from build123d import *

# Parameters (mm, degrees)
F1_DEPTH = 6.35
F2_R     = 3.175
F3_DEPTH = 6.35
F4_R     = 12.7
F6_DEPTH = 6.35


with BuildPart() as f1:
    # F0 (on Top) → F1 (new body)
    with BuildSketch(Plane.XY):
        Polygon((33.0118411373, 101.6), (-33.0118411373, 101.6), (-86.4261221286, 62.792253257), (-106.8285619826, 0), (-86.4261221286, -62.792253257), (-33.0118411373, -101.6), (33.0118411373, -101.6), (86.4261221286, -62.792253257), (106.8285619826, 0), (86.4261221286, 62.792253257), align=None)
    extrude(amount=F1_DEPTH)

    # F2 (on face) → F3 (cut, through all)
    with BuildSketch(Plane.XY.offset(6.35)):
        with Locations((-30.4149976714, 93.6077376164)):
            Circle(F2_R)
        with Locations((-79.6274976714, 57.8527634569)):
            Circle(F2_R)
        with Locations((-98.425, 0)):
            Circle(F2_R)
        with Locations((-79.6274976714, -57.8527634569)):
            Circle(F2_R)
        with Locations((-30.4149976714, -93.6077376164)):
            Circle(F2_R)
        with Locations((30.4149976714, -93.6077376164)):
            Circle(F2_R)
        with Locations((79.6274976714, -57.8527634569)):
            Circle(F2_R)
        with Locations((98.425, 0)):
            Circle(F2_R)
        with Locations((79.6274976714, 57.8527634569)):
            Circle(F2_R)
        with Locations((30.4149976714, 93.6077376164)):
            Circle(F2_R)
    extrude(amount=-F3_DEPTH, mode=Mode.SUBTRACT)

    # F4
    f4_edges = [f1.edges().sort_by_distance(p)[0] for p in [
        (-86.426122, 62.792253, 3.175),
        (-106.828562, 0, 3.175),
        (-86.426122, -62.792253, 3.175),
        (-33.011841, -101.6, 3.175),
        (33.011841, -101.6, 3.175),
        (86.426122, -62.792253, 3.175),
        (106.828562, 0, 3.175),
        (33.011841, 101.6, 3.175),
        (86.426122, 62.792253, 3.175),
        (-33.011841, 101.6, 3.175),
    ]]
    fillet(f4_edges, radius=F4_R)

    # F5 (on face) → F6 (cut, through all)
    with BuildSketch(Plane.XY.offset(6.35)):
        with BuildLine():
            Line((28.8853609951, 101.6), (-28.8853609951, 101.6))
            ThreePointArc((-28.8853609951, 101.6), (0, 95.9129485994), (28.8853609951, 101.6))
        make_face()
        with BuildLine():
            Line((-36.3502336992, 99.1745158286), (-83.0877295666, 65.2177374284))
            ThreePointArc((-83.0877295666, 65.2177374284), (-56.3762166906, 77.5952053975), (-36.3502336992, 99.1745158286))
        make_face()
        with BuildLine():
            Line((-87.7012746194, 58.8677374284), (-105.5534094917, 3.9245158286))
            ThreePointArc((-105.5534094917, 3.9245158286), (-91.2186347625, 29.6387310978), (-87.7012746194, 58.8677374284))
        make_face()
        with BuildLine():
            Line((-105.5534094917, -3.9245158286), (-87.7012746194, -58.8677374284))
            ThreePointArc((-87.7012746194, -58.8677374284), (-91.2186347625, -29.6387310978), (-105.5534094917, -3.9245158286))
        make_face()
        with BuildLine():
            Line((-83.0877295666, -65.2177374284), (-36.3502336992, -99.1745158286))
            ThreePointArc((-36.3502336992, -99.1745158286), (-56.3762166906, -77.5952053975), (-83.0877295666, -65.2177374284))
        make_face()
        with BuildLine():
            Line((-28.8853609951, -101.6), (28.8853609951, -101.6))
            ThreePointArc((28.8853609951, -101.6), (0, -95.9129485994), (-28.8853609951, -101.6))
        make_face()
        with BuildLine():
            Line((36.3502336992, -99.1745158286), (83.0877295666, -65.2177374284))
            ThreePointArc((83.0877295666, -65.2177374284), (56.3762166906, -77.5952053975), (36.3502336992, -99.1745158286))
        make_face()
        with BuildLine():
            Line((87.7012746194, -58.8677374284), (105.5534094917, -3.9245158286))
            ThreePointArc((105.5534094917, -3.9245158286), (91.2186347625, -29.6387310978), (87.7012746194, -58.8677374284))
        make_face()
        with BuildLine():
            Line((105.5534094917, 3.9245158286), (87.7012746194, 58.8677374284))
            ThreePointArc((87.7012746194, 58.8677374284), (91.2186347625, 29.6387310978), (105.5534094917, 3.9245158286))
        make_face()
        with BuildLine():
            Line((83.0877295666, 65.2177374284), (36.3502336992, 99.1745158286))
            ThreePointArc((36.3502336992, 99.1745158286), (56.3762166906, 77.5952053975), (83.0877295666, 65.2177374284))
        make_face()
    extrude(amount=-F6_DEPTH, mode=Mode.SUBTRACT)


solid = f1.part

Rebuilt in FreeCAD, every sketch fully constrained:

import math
import FreeCAD as App
import Part
import Sketcher
Q = App.Units.Quantity


def edges_at(feature, points):
    """Names of the edges that pass closest to the given points."""
    edges = feature.Shape.Edges
    near = lambda p: min(range(len(edges)), key=lambda i: edges[i].distToShape(Part.Vertex(*p))[0])
    return sorted({f"Edge{near(p) + 1}" for p in points})

doc = App.newDocument("Part")
body = doc.addObject("PartDesign::Body", "Body")

# Sketch on XY plane
sketch1 = body.newObject("Sketcher::SketchObject", "Sketch")
sketch1.AttachmentSupport = (doc.getObject("XY_Plane"), [""])
sketch1.MapMode = "FlatFace"
sketch1.addGeometry(Part.LineSegment(App.Vector(33.011841, 101.6, 0), App.Vector(-33.011841, 101.6, 0)), False)
sketch1.addGeometry(Part.LineSegment(App.Vector(-33.011841, 101.6, 0), App.Vector(-86.426122, 62.792253, 0)), False)
sketch1.addGeometry(Part.LineSegment(App.Vector(-86.426122, 62.792253, 0), App.Vector(-106.828562, 0, 0)), False)
sketch1.addGeometry(Part.LineSegment(App.Vector(-106.828562, 0, 0), App.Vector(-86.426122, -62.792253, 0)), False)
sketch1.addGeometry(Part.LineSegment(App.Vector(-86.426122, -62.792253, 0), App.Vector(-33.011841, -101.6, 0)), False)
sketch1.addGeometry(Part.LineSegment(App.Vector(-33.011841, -101.6, 0), App.Vector(33.011841, -101.6, 0)), False)
sketch1.addGeometry(Part.LineSegment(App.Vector(33.011841, -101.6, 0), App.Vector(86.426122, -62.792253, 0)), False)
sketch1.addGeometry(Part.LineSegment(App.Vector(86.426122, -62.792253, 0), App.Vector(106.828562, 0, 0)), False)
sketch1.addGeometry(Part.LineSegment(App.Vector(106.828562, 0, 0), App.Vector(86.426122, 62.792253, 0)), False)
sketch1.addGeometry(Part.LineSegment(App.Vector(86.426122, 62.792253, 0), App.Vector(33.011841, 101.6, 0)), False)
sketch1.addConstraint(Sketcher.Constraint("Coincident", 0, 2, 1, 1))
sketch1.addConstraint(Sketcher.Constraint("Coincident", 1, 2, 2, 1))
sketch1.addConstraint(Sketcher.Constraint("Coincident", 2, 2, 3, 1))
sketch1.addConstraint(Sketcher.Constraint("Coincident", 3, 2, 4, 1))
sketch1.addConstraint(Sketcher.Constraint("Coincident", 4, 2, 5, 1))
sketch1.addConstraint(Sketcher.Constraint("Coincident", 5, 2, 6, 1))
sketch1.addConstraint(Sketcher.Constraint("Coincident", 6, 2, 7, 1))
sketch1.addConstraint(Sketcher.Constraint("Coincident", 7, 2, 8, 1))
sketch1.addConstraint(Sketcher.Constraint("Coincident", 8, 2, 9, 1))
sketch1.addConstraint(Sketcher.Constraint("Coincident", 9, 2, 0, 1))
sketch1.addConstraint(Sketcher.Constraint("Horizontal", 0))
sketch1.addConstraint(Sketcher.Constraint("Horizontal", 5))
sketch1.addConstraint(Sketcher.Constraint("Symmetric", 0, 2, 5, 2, -1, 1))
sketch1.addConstraint(Sketcher.Constraint("Symmetric", 1, 2, 6, 2, -1, 1))
sketch1.addConstraint(Sketcher.Constraint("Symmetric", 2, 2, 7, 2, -1, 1))
sketch1.addConstraint(Sketcher.Constraint("Symmetric", 3, 2, 8, 2, -1, 1))
sketch1.addConstraint(Sketcher.Constraint("Symmetric", 3, 2, 6, 2, -2))
sketch1.addConstraint(Sketcher.Constraint("PointOnObject", 2, 2, -1))
sketch1.addConstraint(Sketcher.Constraint("Parallel", 4, 9))
sketch1.addConstraint(Sketcher.Constraint("Vertical", 0, 2, 4, 2))
sketch1.addConstraint(Sketcher.Constraint("Equal", 1, 2))
sketch1.addConstraint(Sketcher.Constraint("DistanceY", -1, 1, 0, 2, Q("4 in")))
sketch1.addConstraint(Sketcher.Constraint("Angle", 1, Q("-144 deg")))
sketch1.addConstraint(Sketcher.Constraint("Angle", 2, Q("-108 deg")))
sketch1.addConstraint(Sketcher.Constraint("DistanceX", 0, 2, 0, 1, Q("66.023682 mm")))
pad1 = body.newObject("PartDesign::Pad", "Pad")
pad1.Profile = sketch1
pad1.Length = Q("0.25 in")

# Sketch on XY plane
sketch2 = body.newObject("Sketcher::SketchObject", "Sketch001")
sketch2.AttachmentSupport = (doc.getObject("XY_Plane"), [""])
sketch2.MapMode = "FlatFace"
sketch2.AttachmentOffset = App.Placement(App.Vector(0, 0, 0.25 * 25.4), App.Rotation())
sketch2.addGeometry(Part.Circle(App.Vector(-30.414998, 93.607738, 0), App.Vector(0, 0, 1), 3.175), False)
sketch2.addGeometry(Part.Circle(App.Vector(-79.627498, 57.852763, 0), App.Vector(0, 0, 1), 3.175), False)
sketch2.addGeometry(Part.Circle(App.Vector(-98.425, 0, 0), App.Vector(0, 0, 1), 3.175), False)
sketch2.addGeometry(Part.Circle(App.Vector(-79.627498, -57.852763, 0), App.Vector(0, 0, 1), 3.175), False)
sketch2.addGeometry(Part.Circle(App.Vector(-30.414998, -93.607738, 0), App.Vector(0, 0, 1), 3.175), False)
sketch2.addGeometry(Part.Circle(App.Vector(30.414998, -93.607738, 0), App.Vector(0, 0, 1), 3.175), False)
sketch2.addGeometry(Part.Circle(App.Vector(79.627498, -57.852763, 0), App.Vector(0, 0, 1), 3.175), False)
sketch2.addGeometry(Part.Circle(App.Vector(98.425, 0, 0), App.Vector(0, 0, 1), 3.175), False)
sketch2.addGeometry(Part.Circle(App.Vector(79.627498, 57.852763, 0), App.Vector(0, 0, 1), 3.175), False)
sketch2.addGeometry(Part.Circle(App.Vector(30.414998, 93.607738, 0), App.Vector(0, 0, 1), 3.175), False)
sketch2.addConstraint(Sketcher.Constraint("Equal", 0, 1))
sketch2.addConstraint(Sketcher.Constraint("Equal", 1, 2))
sketch2.addConstraint(Sketcher.Constraint("Equal", 2, 3))
sketch2.addConstraint(Sketcher.Constraint("Equal", 3, 4))
sketch2.addConstraint(Sketcher.Constraint("Equal", 4, 5))
sketch2.addConstraint(Sketcher.Constraint("Equal", 5, 6))
sketch2.addConstraint(Sketcher.Constraint("Equal", 6, 7))
sketch2.addConstraint(Sketcher.Constraint("Equal", 7, 8))
sketch2.addConstraint(Sketcher.Constraint("Equal", 8, 9))
sketch2.addConstraint(Sketcher.Constraint("Symmetric", 0, 3, 5, 3, -1, 1))
sketch2.addConstraint(Sketcher.Constraint("Symmetric", 1, 3, 6, 3, -1, 1))
sketch2.addConstraint(Sketcher.Constraint("Symmetric", 2, 3, 7, 3, -1, 1))
sketch2.addConstraint(Sketcher.Constraint("Symmetric", 3, 3, 8, 3, -1, 1))
sketch2.addConstraint(Sketcher.Constraint("Symmetric", 4, 3, 9, 3, -1, 1))
sketch2.addConstraint(Sketcher.Constraint("Symmetric", 4, 3, 5, 3, -2))
sketch2.addConstraint(Sketcher.Constraint("Symmetric", 3, 3, 6, 3, -2))
sketch2.addConstraint(Sketcher.Constraint("PointOnObject", 2, 3, -1))
sketch2.addConstraint(Sketcher.Constraint("Diameter", 0, Q("0.25 in")))
sketch2.addConstraint(Sketcher.Constraint("DistanceX", 2, 3, -1, 1, Q("3.875 in")))
sketch2.addConstraint(Sketcher.Constraint("DistanceX", 1, 3, 0, 3, Q("1.9375 in")))
sketch2.addConstraint(Sketcher.Constraint("DistanceY", 3, 3, 0, 3, Q("151.460501 mm")))
sketch2.addConstraint(Sketcher.Constraint("DistanceX", 0, 3, -1, 1, Q("30.414998 mm")))
sketch2.addConstraint(Sketcher.Constraint("DistanceY", -1, 1, 0, 3, Q("93.607738 mm")))
pocket1 = body.newObject("PartDesign::Pocket", "Pocket")
pocket1.Profile = sketch2
pocket1.Type = "ThroughAll"
doc.recompute()

fillet = body.newObject("PartDesign::Fillet", "Fillet")
fillet.Base = (pocket1, edges_at(pocket1, [
    (-86.426, 62.792, 3.175),
    (-106.829, 0, 3.175),
    (-86.426, -62.792, 3.175),
    (-33.012, -101.6, 3.175),
    (33.012, -101.6, 3.175),
    (86.426, -62.792, 3.175),
    (106.829, 0, 3.175),
    (33.012, 101.6, 3.175),
    (86.426, 62.792, 3.175),
    (-33.012, 101.6, 3.175),
]))
fillet.Radius = Q("0.5 in")

# Sketch on XY plane
sketch3 = body.newObject("Sketcher::SketchObject", "Sketch002")
sketch3.AttachmentSupport = (doc.getObject("XY_Plane"), [""])
sketch3.MapMode = "FlatFace"
sketch3.AttachmentOffset = App.Placement(App.Vector(0, 0, 0.25 * 25.4), App.Rotation())
sketch3.addGeometry(Part.LineSegment(App.Vector(28.885361, 101.6, 0), App.Vector(-28.885361, 101.6, 0)), False)
sketch3.addGeometry(Part.ArcOfCircle(Part.Circle(App.Vector(0, 172.112949, 0), App.Vector(0, 0, 1), 76.2), math.radians(-112.276273), math.radians(-67.723727)), False)
sketch3.addGeometry(Part.LineSegment(App.Vector(-36.350234, 99.174516, 0), App.Vector(-83.08773, 65.217737, 0)), False)
sketch3.addGeometry(Part.ArcOfCircle(Part.Circle(App.Vector(-101.165453, 139.2423, 0), App.Vector(0, 0, 1), 76.2), math.radians(-76.276273), math.radians(-31.723727)), False)
sketch3.addGeometry(Part.LineSegment(App.Vector(-87.701275, 58.867737, 0), App.Vector(-105.553409, 3.924516, 0)), False)
sketch3.addGeometry(Part.ArcOfCircle(Part.Circle(App.Vector(-163.689141, 53.185826, 0), App.Vector(0, 0, 1), 76.2), math.radians(-40.276273), math.radians(4.276273)), False)
sketch3.addGeometry(Part.LineSegment(App.Vector(-105.553409, -3.924516, 0), App.Vector(-87.701275, -58.867737, 0)), False)
sketch3.addGeometry(Part.ArcOfCircle(Part.Circle(App.Vector(-163.689141, -53.185826, 0), App.Vector(0, 0, 1), 76.2), math.radians(-4.276273), math.radians(40.276273)), False)
sketch3.addGeometry(Part.LineSegment(App.Vector(-83.08773, -65.217737, 0), App.Vector(-36.350234, -99.174516, 0)), False)
sketch3.addGeometry(Part.ArcOfCircle(Part.Circle(App.Vector(-101.165453, -139.2423, 0), App.Vector(0, 0, 1), 76.2), math.radians(31.723727), math.radians(76.276273)), False)
sketch3.addGeometry(Part.LineSegment(App.Vector(-28.885361, -101.6, 0), App.Vector(28.885361, -101.6, 0)), False)
sketch3.addGeometry(Part.ArcOfCircle(Part.Circle(App.Vector(0, -172.112949, 0), App.Vector(0, 0, 1), 76.2), math.radians(67.723727), math.radians(112.276273)), False)
sketch3.addGeometry(Part.LineSegment(App.Vector(36.350234, -99.174516, 0), App.Vector(83.08773, -65.217737, 0)), False)
sketch3.addGeometry(Part.ArcOfCircle(Part.Circle(App.Vector(101.165453, -139.2423, 0), App.Vector(0, 0, 1), 76.2), math.radians(103.723727), math.radians(148.276273)), False)
sketch3.addGeometry(Part.LineSegment(App.Vector(87.701275, -58.867737, 0), App.Vector(105.553409, -3.924516, 0)), False)
sketch3.addGeometry(Part.ArcOfCircle(Part.Circle(App.Vector(163.689141, -53.185826, 0), App.Vector(0, 0, 1), 76.2), math.radians(139.723727), math.radians(184.276273)), False)
sketch3.addGeometry(Part.LineSegment(App.Vector(105.553409, 3.924516, 0), App.Vector(87.701275, 58.867737, 0)), False)
sketch3.addGeometry(Part.ArcOfCircle(Part.Circle(App.Vector(163.689141, 53.185826, 0), App.Vector(0, 0, 1), 76.2), math.radians(175.723727), math.radians(220.276273)), False)
sketch3.addGeometry(Part.LineSegment(App.Vector(83.08773, 65.217737, 0), App.Vector(36.350234, 99.174516, 0)), False)
sketch3.addGeometry(Part.ArcOfCircle(Part.Circle(App.Vector(101.165453, 139.2423, 0), App.Vector(0, 0, 1), 76.2), math.radians(-148.276273), math.radians(-103.723727)), False)
sketch3.addConstraint(Sketcher.Constraint("Coincident", 0, 1, 1, 2))
sketch3.addConstraint(Sketcher.Constraint("Coincident", 1, 1, 0, 2))
sketch3.addConstraint(Sketcher.Constraint("Coincident", 2, 1, 3, 2))
sketch3.addConstraint(Sketcher.Constraint("Coincident", 3, 1, 2, 2))
sketch3.addConstraint(Sketcher.Constraint("Coincident", 4, 1, 5, 2))
sketch3.addConstraint(Sketcher.Constraint("Coincident", 5, 1, 4, 2))
sketch3.addConstraint(Sketcher.Constraint("Coincident", 6, 1, 7, 2))
sketch3.addConstraint(Sketcher.Constraint("Coincident", 7, 1, 6, 2))
sketch3.addConstraint(Sketcher.Constraint("Coincident", 8, 1, 9, 2))
sketch3.addConstraint(Sketcher.Constraint("Coincident", 9, 1, 8, 2))
sketch3.addConstraint(Sketcher.Constraint("Coincident", 10, 1, 11, 2))
sketch3.addConstraint(Sketcher.Constraint("Coincident", 11, 1, 10, 2))
sketch3.addConstraint(Sketcher.Constraint("Coincident", 12, 1, 13, 2))
sketch3.addConstraint(Sketcher.Constraint("Coincident", 13, 1, 12, 2))
sketch3.addConstraint(Sketcher.Constraint("Coincident", 14, 1, 15, 2))
sketch3.addConstraint(Sketcher.Constraint("Coincident", 15, 1, 14, 2))
sketch3.addConstraint(Sketcher.Constraint("Coincident", 16, 1, 17, 2))
sketch3.addConstraint(Sketcher.Constraint("Coincident", 17, 1, 16, 2))
sketch3.addConstraint(Sketcher.Constraint("Coincident", 18, 1, 19, 2))
sketch3.addConstraint(Sketcher.Constraint("Coincident", 19, 1, 18, 2))
sketch3.addConstraint(Sketcher.Constraint("Horizontal", 0))
sketch3.addConstraint(Sketcher.Constraint("Horizontal", 10))
sketch3.addConstraint(Sketcher.Constraint("Equal", 1, 3))
sketch3.addConstraint(Sketcher.Constraint("Equal", 3, 5))
sketch3.addConstraint(Sketcher.Constraint("Equal", 5, 7))
sketch3.addConstraint(Sketcher.Constraint("Equal", 7, 9))
sketch3.addConstraint(Sketcher.Constraint("Equal", 9, 11))
sketch3.addConstraint(Sketcher.Constraint("Equal", 11, 13))
sketch3.addConstraint(Sketcher.Constraint("Equal", 13, 15))
sketch3.addConstraint(Sketcher.Constraint("Equal", 15, 17))
sketch3.addConstraint(Sketcher.Constraint("Equal", 17, 19))
sketch3.addConstraint(Sketcher.Constraint("Symmetric", 1, 3, 11, 3, -1, 1))
sketch3.addConstraint(Sketcher.Constraint("Symmetric", 3, 3, 13, 3, -1, 1))
sketch3.addConstraint(Sketcher.Constraint("Symmetric", 5, 3, 15, 3, -1, 1))
sketch3.addConstraint(Sketcher.Constraint("Symmetric", 7, 3, 17, 3, -1, 1))
sketch3.addConstraint(Sketcher.Constraint("Symmetric", 9, 3, 19, 3, -1, 1))
sketch3.addConstraint(Sketcher.Constraint("Symmetric", 9, 3, 13, 3, -2))
sketch3.addConstraint(Sketcher.Constraint("Symmetric", 7, 3, 15, 3, -2))
sketch3.addConstraint(Sketcher.Constraint("Symmetric", 1, 1, 10, 1, -1))
sketch3.addConstraint(Sketcher.Constraint("Parallel", 2, 12))
sketch3.addConstraint(Sketcher.Constraint("Parallel", 4, 14))
sketch3.addConstraint(Sketcher.Constraint("Parallel", 6, 16))
sketch3.addConstraint(Sketcher.Constraint("Parallel", 8, 18))
sketch3.addConstraint(Sketcher.Constraint("Horizontal", 9, 1, 12, 1))
sketch3.addConstraint(Sketcher.Constraint("Horizontal", 8, 1, 13, 1))
sketch3.addConstraint(Sketcher.Constraint("Horizontal", 7, 1, 14, 1))
sketch3.addConstraint(Sketcher.Constraint("Horizontal", 6, 1, 15, 1))
sketch3.addConstraint(Sketcher.Constraint("Horizontal", 5, 1, 16, 1))
sketch3.addConstraint(Sketcher.Constraint("Horizontal", 3, 1, 18, 1))
sketch3.addConstraint(Sketcher.Constraint("Vertical", 5, 1, 6, 1))
sketch3.addConstraint(Sketcher.Constraint("Vertical", 3, 1, 8, 1))
sketch3.addConstraint(Sketcher.Constraint("Equal", 2, 4))
sketch3.addConstraint(Sketcher.Constraint("Radius", 1, Q("3 in")))
sketch3.addConstraint(Sketcher.Constraint("DistanceY", -1, 1, 0, 1, Q("4 in")))
sketch3.addConstraint(Sketcher.Constraint("Angle", 2, Q("-144 deg")))
sketch3.addConstraint(Sketcher.Constraint("Angle", 4, Q("-108 deg")))
sketch3.addConstraint(Sketcher.Constraint("DistanceY", 4, 1, 3, 1, Q("0.25 in")))
sketch3.addConstraint(Sketcher.Constraint("DistanceY", 5, 1, 2, 1, Q("3.75 in")))
sketch3.addConstraint(Sketcher.Constraint("DistanceX", 0, 2, 0, 1, Q("57.770722 mm")))
sketch3.addConstraint(Sketcher.Constraint("DistanceY", -1, 1, 3, 3, Q("139.2423 mm")))
sketch3.addConstraint(Sketcher.Constraint("DistanceX", 5, 3, -1, 1, Q("163.689141 mm")))
sketch3.addConstraint(Sketcher.Constraint("DistanceX", 3, 1, -1, 1, Q("83.08773 mm")))
pocket2 = body.newObject("PartDesign::Pocket", "Pocket001")
pocket2.Profile = sketch3
pocket2.Type = "ThroughAll"

doc.recompute()
